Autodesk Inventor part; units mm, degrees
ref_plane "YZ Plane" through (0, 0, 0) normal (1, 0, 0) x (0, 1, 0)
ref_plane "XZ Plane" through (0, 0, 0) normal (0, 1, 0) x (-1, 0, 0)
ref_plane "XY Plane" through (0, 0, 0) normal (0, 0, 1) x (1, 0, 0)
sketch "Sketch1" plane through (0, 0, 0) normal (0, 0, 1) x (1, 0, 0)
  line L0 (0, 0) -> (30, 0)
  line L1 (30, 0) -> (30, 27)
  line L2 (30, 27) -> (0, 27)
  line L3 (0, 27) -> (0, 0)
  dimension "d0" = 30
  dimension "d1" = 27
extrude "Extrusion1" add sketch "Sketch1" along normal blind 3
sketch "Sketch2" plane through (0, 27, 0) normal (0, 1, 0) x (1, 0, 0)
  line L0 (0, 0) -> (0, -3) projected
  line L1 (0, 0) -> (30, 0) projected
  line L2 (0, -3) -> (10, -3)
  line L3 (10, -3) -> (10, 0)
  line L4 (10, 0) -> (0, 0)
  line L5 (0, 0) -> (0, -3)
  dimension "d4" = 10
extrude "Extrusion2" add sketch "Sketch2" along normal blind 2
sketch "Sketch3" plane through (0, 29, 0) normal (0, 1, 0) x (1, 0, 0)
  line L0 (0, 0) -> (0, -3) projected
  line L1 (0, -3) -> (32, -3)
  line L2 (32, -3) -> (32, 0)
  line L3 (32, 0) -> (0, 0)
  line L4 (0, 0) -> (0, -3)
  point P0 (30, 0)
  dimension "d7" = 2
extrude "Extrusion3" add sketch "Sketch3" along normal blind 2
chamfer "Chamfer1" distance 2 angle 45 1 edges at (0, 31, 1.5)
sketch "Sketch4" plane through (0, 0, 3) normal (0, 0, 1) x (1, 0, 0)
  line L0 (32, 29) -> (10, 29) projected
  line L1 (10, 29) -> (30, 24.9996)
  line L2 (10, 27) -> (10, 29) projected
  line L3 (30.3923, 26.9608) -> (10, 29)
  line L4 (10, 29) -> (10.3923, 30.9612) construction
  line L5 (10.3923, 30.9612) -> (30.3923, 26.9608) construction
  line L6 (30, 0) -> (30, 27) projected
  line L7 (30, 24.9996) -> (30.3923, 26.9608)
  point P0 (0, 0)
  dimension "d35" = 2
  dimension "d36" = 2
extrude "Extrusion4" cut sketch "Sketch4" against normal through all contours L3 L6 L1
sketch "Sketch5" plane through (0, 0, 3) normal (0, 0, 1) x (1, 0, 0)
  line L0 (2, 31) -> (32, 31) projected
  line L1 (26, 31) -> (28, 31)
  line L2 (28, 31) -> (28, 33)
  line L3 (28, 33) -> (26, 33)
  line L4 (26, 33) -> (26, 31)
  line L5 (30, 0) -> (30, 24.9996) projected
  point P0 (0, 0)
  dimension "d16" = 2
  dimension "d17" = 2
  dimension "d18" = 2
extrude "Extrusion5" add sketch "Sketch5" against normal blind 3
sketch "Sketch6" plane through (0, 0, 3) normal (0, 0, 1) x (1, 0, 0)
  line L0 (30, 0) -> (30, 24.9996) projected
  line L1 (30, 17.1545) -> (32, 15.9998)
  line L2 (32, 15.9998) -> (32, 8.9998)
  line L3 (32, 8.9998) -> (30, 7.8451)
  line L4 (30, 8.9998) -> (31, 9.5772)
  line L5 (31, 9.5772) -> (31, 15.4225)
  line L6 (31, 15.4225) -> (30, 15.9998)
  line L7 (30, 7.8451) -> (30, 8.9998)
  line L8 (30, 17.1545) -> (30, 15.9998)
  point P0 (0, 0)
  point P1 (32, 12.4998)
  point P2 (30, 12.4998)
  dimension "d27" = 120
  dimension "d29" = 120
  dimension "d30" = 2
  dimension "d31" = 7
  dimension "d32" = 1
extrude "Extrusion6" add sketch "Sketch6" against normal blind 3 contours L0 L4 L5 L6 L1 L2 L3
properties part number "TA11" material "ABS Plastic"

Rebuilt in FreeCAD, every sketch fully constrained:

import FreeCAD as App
import Part
import Sketcher
Q = App.Units.Quantity


def edges_at(feature, points):
    """Names of the edges that pass closest to the given points."""
    edges = feature.Shape.Edges
    near = lambda p: min(range(len(edges)), key=lambda i: edges[i].distToShape(Part.Vertex(*p))[0])
    return sorted({f"Edge{near(p) + 1}" for p in points})

doc = App.newDocument("Part")
body = doc.addObject("PartDesign::Body", "Body")

sketch1 = body.newObject("Sketcher::SketchObject", "Sketch")
sketch1.AttachmentSupport = (doc.getObject("XY_Plane"), [""])
sketch1.MapMode = "FlatFace"
sketch1.addGeometry([
    Part.LineSegment(App.Vector(0, 27, 0), App.Vector(0, 0, 0)),
    Part.LineSegment(App.Vector(0, 0, 0), App.Vector(30, 0, 0)),
    Part.LineSegment(App.Vector(30, 0, 0), App.Vector(30, 27, 0)),
    Part.LineSegment(App.Vector(30, 27, 0), App.Vector(0, 27, 0)),
], False)
sketch1.addConstraint([
    Sketcher.Constraint("Coincident", 0, 2, 1, 1),
    Sketcher.Constraint("Coincident", 1, 2, 2, 1),
    Sketcher.Constraint("Coincident", 2, 2, 3, 1),
    Sketcher.Constraint("Coincident", 3, 2, 0, 1),
    Sketcher.Constraint("Vertical", 0),
    Sketcher.Constraint("Horizontal", 1),
    Sketcher.Constraint("Vertical", 2),
    Sketcher.Constraint("Horizontal", 3),
    Sketcher.Constraint("Coincident", 0, 2, -1, 1),
    Sketcher.Constraint("DistanceX", 1, 1, 1, 2, Q("30 mm")),
    Sketcher.Constraint("DistanceY", 0, 2, 0, 1, Q("27 mm")),
])
pad1 = body.newObject("PartDesign::Pad", "Pad")
pad1.Profile = sketch1
pad1.Length = 3

sketch2 = body.newObject("Sketcher::SketchObject", "Sketch001")
sketch2.AttachmentSupport = (doc.getObject("XZ_Plane"), [""])
sketch2.MapMode = "FlatFace"
sketch2.AttachmentOffset = App.Placement(App.Vector(0, 0, -27), App.Rotation())
sketch2.addGeometry([
    Part.LineSegment(App.Vector(10, 0, 0), App.Vector(0, 0, 0)),
    Part.LineSegment(App.Vector(0, 0, 0), App.Vector(0, 3, 0)),
    Part.LineSegment(App.Vector(0, 3, 0), App.Vector(10, 3, 0)),
    Part.LineSegment(App.Vector(10, 3, 0), App.Vector(10, 0, 0)),
], False)
sketch2.addConstraint([
    Sketcher.Constraint("Coincident", 0, 2, 1, 1),
    Sketcher.Constraint("Coincident", 1, 2, 2, 1),
    Sketcher.Constraint("Coincident", 2, 2, 3, 1),
    Sketcher.Constraint("Coincident", 3, 2, 0, 1),
    Sketcher.Constraint("Horizontal", 0),
    Sketcher.Constraint("Vertical", 1),
    Sketcher.Constraint("Horizontal", 2),
    Sketcher.Constraint("Vertical", 3),
    Sketcher.Constraint("Coincident", 0, 2, -1, 1),
    Sketcher.Constraint("DistanceX", 0, 2, 0, 1, Q("10 mm")),
    Sketcher.Constraint("DistanceY", 1, 1, 1, 2, Q("3 mm")),
])
pad2 = body.newObject("PartDesign::Pad", "Pad001")
pad2.Profile = sketch2
pad2.Length = 2
pad2.Reversed = True

sketch3 = body.newObject("Sketcher::SketchObject", "Sketch002")
sketch3.AttachmentSupport = (doc.getObject("XZ_Plane"), [""])
sketch3.MapMode = "FlatFace"
sketch3.AttachmentOffset = App.Placement(App.Vector(0, 0, -29), App.Rotation())
sketch3.addGeometry([
    Part.LineSegment(App.Vector(32, 0, 0), App.Vector(0, 0, 0)),
    Part.LineSegment(App.Vector(0, 0, 0), App.Vector(0, 3, 0)),
    Part.LineSegment(App.Vector(0, 3, 0), App.Vector(32, 3, 0)),
    Part.LineSegment(App.Vector(32, 3, 0), App.Vector(32, 0, 0)),
], False)
sketch3.addConstraint([
    Sketcher.Constraint("Coincident", 0, 2, 1, 1),
    Sketcher.Constraint("Coincident", 1, 2, 2, 1),
    Sketcher.Constraint("Coincident", 2, 2, 3, 1),
    Sketcher.Constraint("Coincident", 3, 2, 0, 1),
    Sketcher.Constraint("Horizontal", 0),
    Sketcher.Constraint("Vertical", 1),
    Sketcher.Constraint("Horizontal", 2),
    Sketcher.Constraint("Vertical", 3),
    Sketcher.Constraint("Coincident", 0, 2, -1, 1),
    Sketcher.Constraint("DistanceX", 0, 2, 0, 1, Q("32 mm")),
    Sketcher.Constraint("DistanceY", 1, 1, 1, 2, Q("3 mm")),
])
pad3 = body.newObject("PartDesign::Pad", "Pad002")
pad3.Profile = sketch3
pad3.Length = 2
pad3.Reversed = True
doc.recompute()

chamfer = body.newObject("PartDesign::Chamfer", "Chamfer")
chamfer.Base = (pad3, edges_at(pad3, [(0, 31, 1.5)]))
chamfer.Size = 2

sketch4 = body.newObject("Sketcher::SketchObject", "Sketch003")
sketch4.AttachmentSupport = (doc.getObject("XY_Plane"), [""])
sketch4.MapMode = "FlatFace"
sketch4.AttachmentOffset = App.Placement(App.Vector(0, 0, 3), App.Rotation())
sketch4.addGeometry([
    Part.LineSegment(App.Vector(30, 27, 0), App.Vector(10, 29, 0)),
    Part.LineSegment(App.Vector(10, 29, 0), App.Vector(30, 25, 0)),
    Part.LineSegment(App.Vector(30, 25, 0), App.Vector(30, 27, 0)),
], False)
sketch4.addConstraint([
    Sketcher.Constraint("Coincident", 0, 2, 1, 1),
    Sketcher.Constraint("Coincident", 1, 2, 2, 1),
    Sketcher.Constraint("Coincident", 2, 2, 0, 1),
    Sketcher.Constraint("Vertical", 2),
    Sketcher.Constraint("DistanceY", 2, 2, 0, 2, Q("2 mm")),
    Sketcher.Constraint("DistanceY", 2, 1, 2, 2, Q("2.0004 mm")),
    Sketcher.Constraint("DistanceX", -1, 1, 0, 2, Q("10 mm")),
    Sketcher.Constraint("DistanceY", -1, 1, 0, 2, Q("29 mm")),
    Sketcher.Constraint("DistanceX", -1, 1, 1, 2, Q("30 mm")),
])
pocket1 = body.newObject("PartDesign::Pocket", "Pocket")
pocket1.Profile = sketch4
pocket1.Type = "ThroughAll"

sketch5 = body.newObject("Sketcher::SketchObject", "Sketch004")
sketch5.AttachmentSupport = (doc.getObject("XY_Plane"), [""])
sketch5.MapMode = "FlatFace"
sketch5.AttachmentOffset = App.Placement(App.Vector(0, 0, 3), App.Rotation())
sketch5.addGeometry([
    Part.LineSegment(App.Vector(26, 33, 0), App.Vector(26, 31, 0)),
    Part.LineSegment(App.Vector(26, 31, 0), App.Vector(28, 31, 0)),
    Part.LineSegment(App.Vector(28, 31, 0), App.Vector(28, 33, 0)),
    Part.LineSegment(App.Vector(28, 33, 0), App.Vector(26, 33, 0)),
], False)
sketch5.addConstraint([
    Sketcher.Constraint("Coincident", 0, 2, 1, 1),
    Sketcher.Constraint("Coincident", 1, 2, 2, 1),
    Sketcher.Constraint("Coincident", 2, 2, 3, 1),
    Sketcher.Constraint("Coincident", 3, 2, 0, 1),
    Sketcher.Constraint("Vertical", 0),
    Sketcher.Constraint("Horizontal", 1),
    Sketcher.Constraint("Vertical", 2),
    Sketcher.Constraint("Horizontal", 3),
    Sketcher.Constraint("Equal", 3, 0),
    Sketcher.Constraint("DistanceX", 1, 1, 1, 2, Q("2 mm")),
    Sketcher.Constraint("DistanceX", -1, 1, 0, 2, Q("26 mm")),
    Sketcher.Constraint("DistanceY", -1, 1, 0, 2, Q("31 mm")),
])
pad4 = body.newObject("PartDesign::Pad", "Pad003")
pad4.Profile = sketch5
pad4.Length = 3
pad4.Reversed = True

sketch6 = body.newObject("Sketcher::SketchObject", "Sketch005")
sketch6.AttachmentSupport = (doc.getObject("XY_Plane"), [""])
sketch6.MapMode = "FlatFace"
sketch6.AttachmentOffset = App.Placement(App.Vector(0, 0, 3), App.Rotation())
sketch6.addGeometry([
    Part.LineSegment(App.Vector(30, 9, 0), App.Vector(30, 7.8, 0)),
    Part.LineSegment(App.Vector(30, 7.8, 0), App.Vector(32, 9, 0)),
    Part.LineSegment(App.Vector(32, 9, 0), App.Vector(32, 16, 0)),
    Part.LineSegment(App.Vector(32, 16, 0), App.Vector(30, 17.2, 0)),
    Part.LineSegment(App.Vector(30, 17.2, 0), App.Vector(30, 16, 0)),
    Part.LineSegment(App.Vector(30, 16, 0), App.Vector(31, 15.4, 0)),
    Part.LineSegment(App.Vector(31, 15.4, 0), App.Vector(31, 9.6, 0)),
    Part.LineSegment(App.Vector(31, 9.6, 0), App.Vector(30, 9, 0)),
], False)
sketch6.addConstraint([
    Sketcher.Constraint("Coincident", 0, 2, 1, 1),
    Sketcher.Constraint("Coincident", 1, 2, 2, 1),
    Sketcher.Constraint("Coincident", 2, 2, 3, 1),
    Sketcher.Constraint("Coincident", 3, 2, 4, 1),
    Sketcher.Constraint("Coincident", 4, 2, 5, 1),
    Sketcher.Constraint("Coincident", 5, 2, 6, 1),
    Sketcher.Constraint("Coincident", 6, 2, 7, 1),
    Sketcher.Constraint("Coincident", 7, 2, 0, 1),
    Sketcher.Constraint("Vertical", 0),
    Sketcher.Constraint("Vertical", 2),
    Sketcher.Constraint("Vertical", 4),
    Sketcher.Constraint("Vertical", 6),
    Sketcher.Constraint("Parallel", 3, 5),
    Sketcher.Constraint("Parallel", 1, 7),
    Sketcher.Constraint("Horizontal", 2, 2, 4, 2),
    Sketcher.Constraint("Horizontal", 1, 2, 7, 2),
    Sketcher.Constraint("Vertical", 0, 2, 3, 2),
    Sketcher.Constraint("Equal", 0, 4),
    Sketcher.Constraint("DistanceY", 2, 1, 2, 2, Q("7 mm")),
    Sketcher.Constraint("DistanceX", 0, 2, 1, 2, Q("2 mm")),
    Sketcher.Constraint("DistanceX", 5, 2, 2, 2, Q("1 mm")),
    Sketcher.Constraint("Angle", 1, Q("30 deg")),
    Sketcher.Constraint("DistanceX", -1, 1, 0, 2, Q("30 mm")),
    Sketcher.Constraint("DistanceY", -1, 1, 0, 2, Q("7.845 mm")),
])
pad5 = body.newObject("PartDesign::Pad", "Pad004")
pad5.Profile = sketch6
pad5.Length = 3
pad5.Reversed = True

doc.recompute()
